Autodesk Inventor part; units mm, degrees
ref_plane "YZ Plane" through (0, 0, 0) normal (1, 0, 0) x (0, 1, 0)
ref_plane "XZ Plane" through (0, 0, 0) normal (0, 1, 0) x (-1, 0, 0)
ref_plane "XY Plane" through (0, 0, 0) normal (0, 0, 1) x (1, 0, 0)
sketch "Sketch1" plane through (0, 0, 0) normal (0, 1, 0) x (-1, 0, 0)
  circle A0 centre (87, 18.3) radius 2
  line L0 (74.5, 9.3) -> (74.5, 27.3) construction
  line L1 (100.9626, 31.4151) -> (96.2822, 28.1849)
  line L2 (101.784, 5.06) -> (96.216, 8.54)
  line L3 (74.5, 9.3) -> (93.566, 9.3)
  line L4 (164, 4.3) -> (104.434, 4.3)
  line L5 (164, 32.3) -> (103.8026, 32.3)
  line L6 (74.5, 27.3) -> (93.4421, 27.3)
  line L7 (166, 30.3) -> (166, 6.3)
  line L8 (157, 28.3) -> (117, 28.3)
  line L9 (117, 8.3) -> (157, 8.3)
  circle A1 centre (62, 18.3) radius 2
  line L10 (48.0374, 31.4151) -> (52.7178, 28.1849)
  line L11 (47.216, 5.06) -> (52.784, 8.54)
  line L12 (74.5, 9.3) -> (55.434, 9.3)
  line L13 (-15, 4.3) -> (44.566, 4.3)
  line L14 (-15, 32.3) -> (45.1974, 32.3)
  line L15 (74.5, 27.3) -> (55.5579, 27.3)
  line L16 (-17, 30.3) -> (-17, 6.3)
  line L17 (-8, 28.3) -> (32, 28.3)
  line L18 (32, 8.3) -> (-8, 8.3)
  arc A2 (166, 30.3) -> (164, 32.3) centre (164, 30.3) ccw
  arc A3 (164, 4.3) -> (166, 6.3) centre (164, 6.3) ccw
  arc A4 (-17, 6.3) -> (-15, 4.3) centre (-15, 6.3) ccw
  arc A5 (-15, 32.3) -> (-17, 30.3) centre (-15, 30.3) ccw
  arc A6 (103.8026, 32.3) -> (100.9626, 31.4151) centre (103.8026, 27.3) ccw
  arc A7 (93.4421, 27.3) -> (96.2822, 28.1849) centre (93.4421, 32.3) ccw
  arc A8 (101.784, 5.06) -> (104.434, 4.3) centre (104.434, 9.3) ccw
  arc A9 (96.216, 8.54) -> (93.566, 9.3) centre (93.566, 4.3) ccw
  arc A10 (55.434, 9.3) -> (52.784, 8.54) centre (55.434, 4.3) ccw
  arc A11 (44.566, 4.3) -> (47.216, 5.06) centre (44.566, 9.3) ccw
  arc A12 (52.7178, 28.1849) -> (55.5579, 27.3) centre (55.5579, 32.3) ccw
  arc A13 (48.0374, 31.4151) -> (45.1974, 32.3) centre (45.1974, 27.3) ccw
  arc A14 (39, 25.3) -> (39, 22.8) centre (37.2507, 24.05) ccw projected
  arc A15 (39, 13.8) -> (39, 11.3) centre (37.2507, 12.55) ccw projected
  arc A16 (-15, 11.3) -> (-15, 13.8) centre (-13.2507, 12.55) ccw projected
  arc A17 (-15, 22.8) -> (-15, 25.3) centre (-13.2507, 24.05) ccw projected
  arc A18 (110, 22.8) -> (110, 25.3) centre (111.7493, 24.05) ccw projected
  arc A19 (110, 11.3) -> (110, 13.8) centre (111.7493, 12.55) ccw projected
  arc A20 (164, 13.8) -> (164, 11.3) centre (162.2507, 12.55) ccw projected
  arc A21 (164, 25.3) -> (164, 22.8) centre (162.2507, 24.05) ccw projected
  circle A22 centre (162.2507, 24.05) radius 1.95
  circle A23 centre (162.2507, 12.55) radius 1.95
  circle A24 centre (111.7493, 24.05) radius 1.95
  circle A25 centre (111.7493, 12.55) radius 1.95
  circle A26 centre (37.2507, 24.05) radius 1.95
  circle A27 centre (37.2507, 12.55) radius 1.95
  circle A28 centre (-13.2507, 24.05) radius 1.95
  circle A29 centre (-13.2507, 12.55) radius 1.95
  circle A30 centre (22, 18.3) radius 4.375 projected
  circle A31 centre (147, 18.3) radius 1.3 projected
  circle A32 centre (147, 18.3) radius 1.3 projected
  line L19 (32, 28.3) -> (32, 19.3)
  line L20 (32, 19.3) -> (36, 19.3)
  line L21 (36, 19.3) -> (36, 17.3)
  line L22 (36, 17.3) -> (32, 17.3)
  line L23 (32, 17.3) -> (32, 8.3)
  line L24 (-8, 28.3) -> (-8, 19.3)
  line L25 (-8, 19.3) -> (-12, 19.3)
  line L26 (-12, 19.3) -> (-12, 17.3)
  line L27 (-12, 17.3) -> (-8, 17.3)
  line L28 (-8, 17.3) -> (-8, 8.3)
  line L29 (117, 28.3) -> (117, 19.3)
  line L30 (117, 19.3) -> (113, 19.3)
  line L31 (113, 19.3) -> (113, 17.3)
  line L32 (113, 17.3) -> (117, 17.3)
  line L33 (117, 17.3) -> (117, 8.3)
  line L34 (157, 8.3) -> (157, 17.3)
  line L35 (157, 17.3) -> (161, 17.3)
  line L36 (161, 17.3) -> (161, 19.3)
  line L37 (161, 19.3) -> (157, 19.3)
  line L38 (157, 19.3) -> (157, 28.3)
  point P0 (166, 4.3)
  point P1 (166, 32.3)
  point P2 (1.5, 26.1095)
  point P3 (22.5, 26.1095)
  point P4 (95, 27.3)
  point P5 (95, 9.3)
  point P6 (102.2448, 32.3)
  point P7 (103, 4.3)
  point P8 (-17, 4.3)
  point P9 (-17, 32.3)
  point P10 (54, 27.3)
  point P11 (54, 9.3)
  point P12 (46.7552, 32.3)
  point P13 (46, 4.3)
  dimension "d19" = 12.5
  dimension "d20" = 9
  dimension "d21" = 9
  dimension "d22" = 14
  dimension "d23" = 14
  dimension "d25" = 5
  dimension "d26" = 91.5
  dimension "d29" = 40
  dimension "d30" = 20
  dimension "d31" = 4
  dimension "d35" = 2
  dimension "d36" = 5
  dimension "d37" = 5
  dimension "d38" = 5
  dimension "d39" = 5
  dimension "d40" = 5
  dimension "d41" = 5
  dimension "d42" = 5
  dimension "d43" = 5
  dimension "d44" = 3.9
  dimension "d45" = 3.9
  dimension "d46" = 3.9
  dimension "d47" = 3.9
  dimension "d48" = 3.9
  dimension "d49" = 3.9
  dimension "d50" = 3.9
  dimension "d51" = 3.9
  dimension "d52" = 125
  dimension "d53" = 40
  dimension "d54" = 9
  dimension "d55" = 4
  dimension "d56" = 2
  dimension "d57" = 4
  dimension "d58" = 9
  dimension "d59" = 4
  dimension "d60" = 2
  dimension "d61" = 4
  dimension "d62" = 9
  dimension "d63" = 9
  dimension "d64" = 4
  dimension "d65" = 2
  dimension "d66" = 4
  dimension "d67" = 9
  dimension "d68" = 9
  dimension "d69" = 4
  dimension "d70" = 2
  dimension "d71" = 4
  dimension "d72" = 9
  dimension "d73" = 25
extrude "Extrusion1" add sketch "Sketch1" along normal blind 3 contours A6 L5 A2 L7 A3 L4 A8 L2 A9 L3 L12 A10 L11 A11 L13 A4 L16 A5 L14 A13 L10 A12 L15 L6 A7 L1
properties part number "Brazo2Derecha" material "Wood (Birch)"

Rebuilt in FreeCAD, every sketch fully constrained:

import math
import FreeCAD as App
import Part
import Sketcher

doc = App.newDocument("Part")
params = doc.addObject("Spreadsheet::Sheet", "Params")
for row, (alias, value) in enumerate([
    ("sketch1_diameter", "4 mm"),
    ("sketch1_radius", "5 mm"),
    ("sketch1_diameter2", "3.9 mm"),
    ("sketch1_width", "40 mm"),
    ("sketch1_width2", "4 mm"),
    ("pad1_length", "3 mm"),
], start=1):
    params.set(f"A{row}", alias)
    params.set(f"B{row}", "=" + value)
    params.setAlias(f"B{row}", alias)

body = doc.addObject("PartDesign::Body", "Body")

# Sketch on XZ plane
sketch1 = doc.addObject("Sketcher::SketchObject", "Sketch")
body.addObject(sketch1)
sketch1.AttachmentSupport = (doc.XZ_Plane, [""])
sketch1.MapMode = "FlatFace"
sketch1.addGeometry(Part.ArcOfCircle(Part.Circle(App.Vector(-103.8, 27.3, 0), App.Vector(0, 0, 1), 5), math.radians(55), math.radians(90)), False)
sketch1.addGeometry(Part.LineSegment(App.Vector(-101, 31.4, 0), App.Vector(-96.3, 28.2, 0)), False)
sketch1.addGeometry(Part.ArcOfCircle(Part.Circle(App.Vector(-93.4, 32.3, 0), App.Vector(0, 0, 1), 5), math.radians(-125), math.radians(-90)), False)
sketch1.addGeometry(Part.LineSegment(App.Vector(-93.4, 27.3, 0), App.Vector(-55.6, 27.3, 0)), False)
sketch1.addGeometry(Part.ArcOfCircle(Part.Circle(App.Vector(-55.6, 32.3, 0), App.Vector(0, 0, 1), 5), math.radians(-90), math.radians(-55)), False)
sketch1.addGeometry(Part.LineSegment(App.Vector(-52.7, 28.2, 0), App.Vector(-48, 31.4, 0)), False)
sketch1.addGeometry(Part.ArcOfCircle(Part.Circle(App.Vector(-45.2, 27.3, 0), App.Vector(0, 0, 1), 5), math.radians(90), math.radians(125)), False)
sketch1.addGeometry(Part.LineSegment(App.Vector(-45.2, 32.3, 0), App.Vector(15, 32.3, 0)), False)
sketch1.addGeometry(Part.ArcOfCircle(Part.Circle(App.Vector(15, 30.3, 0), App.Vector(0, 0, 1), 2), math.radians(0), math.radians(90)), False)
sketch1.addGeometry(Part.LineSegment(App.Vector(17, 30.3, 0), App.Vector(17, 6.3, 0)), False)
sketch1.addGeometry(Part.ArcOfCircle(Part.Circle(App.Vector(15, 6.3, 0), App.Vector(0, 0, 1), 2), math.radians(-90), math.radians(0)), False)
sketch1.addGeometry(Part.LineSegment(App.Vector(15, 4.3, 0), App.Vector(-44.6, 4.3, 0)), False)
sketch1.addGeometry(Part.ArcOfCircle(Part.Circle(App.Vector(-44.6, 9.3, 0), App.Vector(0, 0, 1), 5), math.radians(-122), math.radians(-90)), False)
sketch1.addGeometry(Part.LineSegment(App.Vector(-47.2, 5.1, 0), App.Vector(-52.8, 8.5, 0)), False)
sketch1.addGeometry(Part.ArcOfCircle(Part.Circle(App.Vector(-55.4, 4.3, 0), App.Vector(0, 0, 1), 5), math.radians(58), math.radians(90)), False)
sketch1.addGeometry(Part.LineSegment(App.Vector(-55.4, 9.3, 0), App.Vector(-93.6, 9.3, 0)), False)
sketch1.addGeometry(Part.ArcOfCircle(Part.Circle(App.Vector(-93.6, 4.3, 0), App.Vector(0, 0, 1), 5), math.radians(90), math.radians(122)), False)
sketch1.addGeometry(Part.LineSegment(App.Vector(-96.2, 8.5, 0), App.Vector(-101.8, 5.1, 0)), False)
sketch1.addGeometry(Part.ArcOfCircle(Part.Circle(App.Vector(-104.4, 9.3, 0), App.Vector(0, 0, 1), 5), math.radians(-90), math.radians(-58)), False)
sketch1.addGeometry(Part.LineSegment(App.Vector(-104.4, 4.3, 0), App.Vector(-164, 4.3, 0)), False)
sketch1.addGeometry(Part.ArcOfCircle(Part.Circle(App.Vector(-164, 6.3, 0), App.Vector(0, 0, 1), 2), math.radians(180), math.radians(270)), False)
sketch1.addGeometry(Part.LineSegment(App.Vector(-166, 6.3, 0), App.Vector(-166, 30.3, 0)), False)
sketch1.addGeometry(Part.ArcOfCircle(Part.Circle(App.Vector(-164, 30.3, 0), App.Vector(0, 0, 1), 2), math.radians(90), math.radians(180)), False)
sketch1.addGeometry(Part.LineSegment(App.Vector(-164, 32.3, 0), App.Vector(-103.8, 32.3, 0)), False)
sketch1.addGeometry(Part.Circle(App.Vector(13.3, 12.6, 0), App.Vector(0, 0, 1), 1.9), False)
sketch1.addGeometry(Part.LineSegment(App.Vector(8, 19.3, 0), App.Vector(8, 28.3, 0)), False)
sketch1.addGeometry(Part.LineSegment(App.Vector(8, 28.3, 0), App.Vector(-32, 28.3, 0)), False)
sketch1.addGeometry(Part.LineSegment(App.Vector(-32, 28.3, 0), App.Vector(-32, 19.3, 0)), False)
sketch1.addGeometry(Part.LineSegment(App.Vector(-32, 19.3, 0), App.Vector(-36, 19.3, 0)), False)
sketch1.addGeometry(Part.LineSegment(App.Vector(-36, 19.3, 0), App.Vector(-36, 17.3, 0)), False)
sketch1.addGeometry(Part.LineSegment(App.Vector(-36, 17.3, 0), App.Vector(-32, 17.3, 0)), False)
sketch1.addGeometry(Part.LineSegment(App.Vector(-32, 17.3, 0), App.Vector(-32, 8.3, 0)), False)
sketch1.addGeometry(Part.LineSegment(App.Vector(-32, 8.3, 0), App.Vector(8, 8.3, 0)), False)
sketch1.addGeometry(Part.LineSegment(App.Vector(8, 8.3, 0), App.Vector(8, 17.3, 0)), False)
sketch1.addGeometry(Part.LineSegment(App.Vector(8, 17.3, 0), App.Vector(12, 17.3, 0)), False)
sketch1.addGeometry(Part.LineSegment(App.Vector(12, 17.3, 0), App.Vector(12, 19.3, 0)), False)
sketch1.addGeometry(Part.LineSegment(App.Vector(12, 19.3, 0), App.Vector(8, 19.3, 0)), False)
sketch1.addGeometry(Part.Circle(App.Vector(-37.3, 12.6, 0), App.Vector(0, 0, 1), 1.9), False)
sketch1.addGeometry(Part.Circle(App.Vector(-62, 18.3, 0), App.Vector(0, 0, 1), 2), False)
sketch1.addGeometry(Part.Circle(App.Vector(-111.7, 12.6, 0), App.Vector(0, 0, 1), 1.9), False)
sketch1.addGeometry(Part.Circle(App.Vector(-87, 18.3, 0), App.Vector(0, 0, 1), 2), False)
sketch1.addGeometry(Part.Circle(App.Vector(-162.3, 12.6, 0), App.Vector(0, 0, 1), 1.9), False)
sketch1.addGeometry(Part.LineSegment(App.Vector(-117, 28.3, 0), App.Vector(-157, 28.3, 0)), False)
sketch1.addGeometry(Part.LineSegment(App.Vector(-157, 28.3, 0), App.Vector(-157, 19.3, 0)), False)
sketch1.addGeometry(Part.LineSegment(App.Vector(-157, 19.3, 0), App.Vector(-161, 19.3, 0)), False)
sketch1.addGeometry(Part.LineSegment(App.Vector(-161, 19.3, 0), App.Vector(-161, 17.3, 0)), False)
sketch1.addGeometry(Part.LineSegment(App.Vector(-161, 17.3, 0), App.Vector(-157, 17.3, 0)), False)
sketch1.addGeometry(Part.LineSegment(App.Vector(-157, 17.3, 0), App.Vector(-157, 8.3, 0)), False)
sketch1.addGeometry(Part.LineSegment(App.Vector(-157, 8.3, 0), App.Vector(-117, 8.3, 0)), False)
sketch1.addGeometry(Part.LineSegment(App.Vector(-117, 8.3, 0), App.Vector(-117, 17.3, 0)), False)
sketch1.addGeometry(Part.LineSegment(App.Vector(-117, 17.3, 0), App.Vector(-113, 17.3, 0)), False)
sketch1.addGeometry(Part.LineSegment(App.Vector(-113, 17.3, 0), App.Vector(-113, 19.3, 0)), False)
sketch1.addGeometry(Part.LineSegment(App.Vector(-113, 19.3, 0), App.Vector(-117, 19.3, 0)), False)
sketch1.addGeometry(Part.LineSegment(App.Vector(-117, 19.3, 0), App.Vector(-117, 28.3, 0)), False)
sketch1.addGeometry(Part.Circle(App.Vector(13.3, 24.1, 0), App.Vector(0, 0, 1), 1.9), False)
sketch1.addGeometry(Part.Circle(App.Vector(-37.3, 24.1, 0), App.Vector(0, 0, 1), 1.9), False)
sketch1.addGeometry(Part.Circle(App.Vector(-111.7, 24.1, 0), App.Vector(0, 0, 1), 1.9), False)
sketch1.addGeometry(Part.Circle(App.Vector(-162.3, 24.1, 0), App.Vector(0, 0, 1), 1.9), False)
sketch1.addConstraint(Sketcher.Constraint("Tangent", 0, 1, 1, 1))
sketch1.addConstraint(Sketcher.Constraint("Tangent", 1, 2, 2, 1))
sketch1.addConstraint(Sketcher.Constraint("Tangent", 2, 2, 3, 1))
sketch1.addConstraint(Sketcher.Constraint("Tangent", 3, 2, 4, 1))
sketch1.addConstraint(Sketcher.Constraint("Tangent", 4, 2, 5, 1))
sketch1.addConstraint(Sketcher.Constraint("Tangent", 5, 2, 6, 2))
sketch1.addConstraint(Sketcher.Constraint("Tangent", 6, 1, 7, 1))
sketch1.addConstraint(Sketcher.Constraint("Tangent", 7, 2, 8, 2))
sketch1.addConstraint(Sketcher.Constraint("Tangent", 8, 1, 9, 1))
sketch1.addConstraint(Sketcher.Constraint("Tangent", 9, 2, 10, 2))
sketch1.addConstraint(Sketcher.Constraint("Tangent", 10, 1, 11, 1))
sketch1.addConstraint(Sketcher.Constraint("Tangent", 11, 2, 12, 2))
sketch1.addConstraint(Sketcher.Constraint("Tangent", 12, 1, 13, 1))
sketch1.addConstraint(Sketcher.Constraint("Tangent", 13, 2, 14, 1))
sketch1.addConstraint(Sketcher.Constraint("Tangent", 14, 2, 15, 1))
sketch1.addConstraint(Sketcher.Constraint("Tangent", 15, 2, 16, 1))
sketch1.addConstraint(Sketcher.Constraint("Tangent", 16, 2, 17, 1))
sketch1.addConstraint(Sketcher.Constraint("Tangent", 17, 2, 18, 2))
sketch1.addConstraint(Sketcher.Constraint("Tangent", 18, 1, 19, 1))
sketch1.addConstraint(Sketcher.Constraint("Tangent", 19, 2, 20, 2))
sketch1.addConstraint(Sketcher.Constraint("Tangent", 20, 1, 21, 1))
sketch1.addConstraint(Sketcher.Constraint("Tangent", 21, 2, 22, 2))
sketch1.addConstraint(Sketcher.Constraint("Tangent", 22, 1, 23, 1))
sketch1.addConstraint(Sketcher.Constraint("Tangent", 23, 2, 0, 2))
sketch1.addConstraint(Sketcher.Constraint("Coincident", 25, 2, 26, 1))
sketch1.addConstraint(Sketcher.Constraint("Coincident", 26, 2, 27, 1))
sketch1.addConstraint(Sketcher.Constraint("Coincident", 27, 2, 28, 1))
sketch1.addConstraint(Sketcher.Constraint("Coincident", 28, 2, 29, 1))
sketch1.addConstraint(Sketcher.Constraint("Coincident", 29, 2, 30, 1))
sketch1.addConstraint(Sketcher.Constraint("Coincident", 30, 2, 31, 1))
sketch1.addConstraint(Sketcher.Constraint("Coincident", 31, 2, 32, 1))
sketch1.addConstraint(Sketcher.Constraint("Coincident", 32, 2, 33, 1))
sketch1.addConstraint(Sketcher.Constraint("Coincident", 33, 2, 34, 1))
sketch1.addConstraint(Sketcher.Constraint("Coincident", 34, 2, 35, 1))
sketch1.addConstraint(Sketcher.Constraint("Coincident", 35, 2, 36, 1))
sketch1.addConstraint(Sketcher.Constraint("Coincident", 36, 2, 25, 1))
sketch1.addConstraint(Sketcher.Constraint("Coincident", 42, 2, 43, 1))
sketch1.addConstraint(Sketcher.Constraint("Coincident", 43, 2, 44, 1))
sketch1.addConstraint(Sketcher.Constraint("Coincident", 44, 2, 45, 1))
sketch1.addConstraint(Sketcher.Constraint("Coincident", 45, 2, 46, 1))
sketch1.addConstraint(Sketcher.Constraint("Coincident", 46, 2, 47, 1))
sketch1.addConstraint(Sketcher.Constraint("Coincident", 47, 2, 48, 1))
sketch1.addConstraint(Sketcher.Constraint("Coincident", 48, 2, 49, 1))
sketch1.addConstraint(Sketcher.Constraint("Coincident", 49, 2, 50, 1))
sketch1.addConstraint(Sketcher.Constraint("Coincident", 50, 2, 51, 1))
sketch1.addConstraint(Sketcher.Constraint("Coincident", 51, 2, 52, 1))
sketch1.addConstraint(Sketcher.Constraint("Coincident", 52, 2, 53, 1))
sketch1.addConstraint(Sketcher.Constraint("Coincident", 53, 2, 42, 1))
sketch1.addConstraint(Sketcher.Constraint("Horizontal", 3))
sketch1.addConstraint(Sketcher.Constraint("Horizontal", 7))
sketch1.addConstraint(Sketcher.Constraint("Vertical", 9))
sketch1.addConstraint(Sketcher.Constraint("Horizontal", 11))
sketch1.addConstraint(Sketcher.Constraint("Horizontal", 15))
sketch1.addConstraint(Sketcher.Constraint("Horizontal", 19))
sketch1.addConstraint(Sketcher.Constraint("Vertical", 21))
sketch1.addConstraint(Sketcher.Constraint("Horizontal", 23))
sketch1.addConstraint(Sketcher.Constraint("Vertical", 25))
sketch1.addConstraint(Sketcher.Constraint("Horizontal", 26))
sketch1.addConstraint(Sketcher.Constraint("Vertical", 27))
sketch1.addConstraint(Sketcher.Constraint("Horizontal", 28))
sketch1.addConstraint(Sketcher.Constraint("Vertical", 29))
sketch1.addConstraint(Sketcher.Constraint("Horizontal", 30))
sketch1.addConstraint(Sketcher.Constraint("Vertical", 31))
sketch1.addConstraint(Sketcher.Constraint("Horizontal", 32))
sketch1.addConstraint(Sketcher.Constraint("Vertical", 33))
sketch1.addConstraint(Sketcher.Constraint("Horizontal", 34))
sketch1.addConstraint(Sketcher.Constraint("Vertical", 35))
sketch1.addConstraint(Sketcher.Constraint("Horizontal", 36))
sketch1.addConstraint(Sketcher.Constraint("Horizontal", 42))
sketch1.addConstraint(Sketcher.Constraint("Vertical", 43))
sketch1.addConstraint(Sketcher.Constraint("Horizontal", 44))
sketch1.addConstraint(Sketcher.Constraint("Vertical", 45))
sketch1.addConstraint(Sketcher.Constraint("Horizontal", 46))
sketch1.addConstraint(Sketcher.Constraint("Vertical", 47))
sketch1.addConstraint(Sketcher.Constraint("Horizontal", 48))
sketch1.addConstraint(Sketcher.Constraint("Vertical", 49))
sketch1.addConstraint(Sketcher.Constraint("Horizontal", 50))
sketch1.addConstraint(Sketcher.Constraint("Vertical", 51))
sketch1.addConstraint(Sketcher.Constraint("Horizontal", 52))
sketch1.addConstraint(Sketcher.Constraint("Vertical", 53))
sketch1.addConstraint(Sketcher.Constraint("Equal", 0, 2))
sketch1.addConstraint(Sketcher.Constraint("Equal", 2, 4))
sketch1.addConstraint(Sketcher.Constraint("Equal", 4, 6))
sketch1.addConstraint(Sketcher.Constraint("Equal", 8, 10))
sketch1.addConstraint(Sketcher.Constraint("Equal", 6, 12))
sketch1.addConstraint(Sketcher.Constraint("Equal", 12, 14))
sketch1.addConstraint(Sketcher.Constraint("Equal", 14, 16))
sketch1.addConstraint(Sketcher.Constraint("Equal", 16, 18))
sketch1.addConstraint(Sketcher.Constraint("Equal", 10, 20))
sketch1.addConstraint(Sketcher.Constraint("Equal", 20, 22))
sketch1.addConstraint(Sketcher.Constraint("Equal", 24, 37))
sketch1.addConstraint(Sketcher.Constraint("Equal", 22, 38))
sketch1.addConstraint(Sketcher.Constraint("Equal", 37, 39))
sketch1.addConstraint(Sketcher.Constraint("Equal", 38, 40))
sketch1.addConstraint(Sketcher.Constraint("Equal", 39, 41))
sketch1.addConstraint(Sketcher.Constraint("Equal", 41, 54))
sketch1.addConstraint(Sketcher.Constraint("Equal", 54, 55))
sketch1.addConstraint(Sketcher.Constraint("Equal", 55, 56))
sketch1.addConstraint(Sketcher.Constraint("Equal", 56, 57))
sketch1.addConstraint(Sketcher.Constraint("Horizontal", 0, 3, 6, 3))
sketch1.addConstraint(Sketcher.Constraint("Horizontal", 12, 3, 18, 3))
sketch1.addConstraint(Sketcher.Constraint("Horizontal", 24, 3, 37, 3))
sketch1.addConstraint(Sketcher.Constraint("Horizontal", 37, 3, 39, 3))
sketch1.addConstraint(Sketcher.Constraint("Horizontal", 38, 3, 40, 3))
sketch1.addConstraint(Sketcher.Constraint("Horizontal", 39, 3, 41, 3))
sketch1.addConstraint(Sketcher.Constraint("Horizontal", 54, 3, 55, 3))
sketch1.addConstraint(Sketcher.Constraint("Horizontal", 55, 3, 56, 3))
sketch1.addConstraint(Sketcher.Constraint("Horizontal", 56, 3, 57, 3))
sketch1.addConstraint(Sketcher.Constraint("Horizontal", 6, 3, 2, 2))
sketch1.addConstraint(Sketcher.Constraint("Horizontal", 1, 2, 4, 2))
sketch1.addConstraint(Sketcher.Constraint("Horizontal", 16, 3, 10, 1))
sketch1.addConstraint(Sketcher.Constraint("Horizontal", 13, 2, 16, 2))
sketch1.addConstraint(Sketcher.Constraint("Horizontal", 30, 2, 33, 2))
sketch1.addConstraint(Sketcher.Constraint("Horizontal", 28, 2, 35, 2))
sketch1.addConstraint(Sketcher.Constraint("Horizontal", 26, 2, 42, 2))
sketch1.addConstraint(Sketcher.Constraint("Horizontal", 36, 2, 43, 2))
sketch1.addConstraint(Sketcher.Constraint("Horizontal", 34, 2, 45, 2))
sketch1.addConstraint(Sketcher.Constraint("Horizontal", 32, 2, 47, 2))
sketch1.addConstraint(Sketcher.Constraint("Horizontal", 46, 2, 49, 2))
sketch1.addConstraint(Sketcher.Constraint("Horizontal", 44, 2, 51, 2))
sketch1.addConstraint(Sketcher.Constraint("Vertical", 24, 3, 54, 3))
sketch1.addConstraint(Sketcher.Constraint("Vertical", 37, 3, 55, 3))
sketch1.addConstraint(Sketcher.Constraint("Vertical", 39, 3, 56, 3))
sketch1.addConstraint(Sketcher.Constraint("Vertical", 41, 3, 57, 3))
sketch1.addConstraint(Sketcher.Constraint("Vertical", 27, 2, 30, 2))
sketch1.addConstraint(Sketcher.Constraint("Vertical", 25, 2, 32, 2))
sketch1.addConstraint(Sketcher.Constraint("Vertical", 43, 2, 46, 2))
sketch1.addConstraint(Sketcher.Constraint("Vertical", 49, 2, 52, 2))
sketch1.addConstraint(Sketcher.Constraint("Equal", 11, 19))
sketch1.addConstraint(Sketcher.Constraint("Equal", 7, 23))
sketch1.addConstraint(Sketcher.Constraint("Equal", 30, 34))
sketch1.addConstraint(Sketcher.Constraint("Equal", 32, 42))
sketch1.addConstraint(Sketcher.Constraint("Equal", 36, 44))
sketch1.addConstraint(Sketcher.Constraint("Equal", 46, 50))
sketch1.addConstraint(Sketcher.Constraint("Equal", 27, 31))
sketch1.addConstraint(Sketcher.Constraint("Diameter", 38, 4.0))
sketch1.addConstraint(Sketcher.Constraint("Radius", 0, 5.0))
sketch1.addConstraint(Sketcher.Constraint("Diameter", 24, 3.9))
sketch1.addConstraint(Sketcher.Constraint("DistanceX", 26, 2, 26, 1, 40.0))
sketch1.addConstraint(Sketcher.Constraint("DistanceX", 28, 2, 28, 1, 4.0))
sketch1.addConstraint(Sketcher.Constraint("DistanceY", 25, 1, 25, 2, 9.0))
sketch1.addConstraint(Sketcher.Constraint("DistanceY", 29, 2, 29, 1, 2.0))
sketch1.addConstraint(Sketcher.Constraint("DistanceY", 9, 2, 9, 1, 24.0))
sketch1.addConstraint(Sketcher.Constraint("DistanceX", -1, 1, 8, 3, 15.0))
sketch1.addConstraint(Sketcher.Constraint("DistanceX", 20, 3, -1, 1, 164.0))
sketch1.addConstraint(Sketcher.Constraint("DistanceX", 38, 3, -1, 1, 62.0))
sketch1.addConstraint(Sketcher.Constraint("DistanceX", 40, 3, -1, 1, 87.0))
sketch1.addConstraint(Sketcher.Constraint("DistanceX", -1, 1, 25, 2, 8.0))
sketch1.addConstraint(Sketcher.Constraint("DistanceX", 42, 2, -1, 1, 157.0))
sketch1.addConstraint(Sketcher.Constraint("DistanceY", -1, 1, 0, 3, 27.3))
sketch1.addConstraint(Sketcher.Constraint("DistanceY", -1, 1, 38, 3, 18.3))
sketch1.addConstraint(Sketcher.Constraint("DistanceY", -1, 1, 25, 2, 28.3))
sketch1.addConstraint(Sketcher.Constraint("DistanceX", 11, 2, 11, 1, 59.566))
sketch1.addConstraint(Sketcher.Constraint("DistanceX", 15, 2, 15, 1, 38.132))
sketch1.addConstraint(Sketcher.Constraint("DistanceY", -1, 1, 24, 3, 12.55))
sketch1.addConstraint(Sketcher.Constraint("DistanceY", -1, 1, 54, 3, 24.05))
sketch1.addConstraint(Sketcher.Constraint("DistanceX", 3, 1, 3, 2, 37.8842))
sketch1.addConstraint(Sketcher.Constraint("DistanceX", 7, 1, 7, 2, 60.1974))
sketch1.addConstraint(Sketcher.Constraint("DistanceX", -1, 1, 24, 3, 13.2507))
sketch1.addConstraint(Sketcher.Constraint("DistanceX", 37, 3, -1, 1, 37.2507))
sketch1.addConstraint(Sketcher.Constraint("DistanceX", 39, 3, -1, 1, 111.7493))
sketch1.addConstraint(Sketcher.Constraint("DistanceX", 41, 3, -1, 1, 162.2507))
sketch1.setExpression("Constraints[135]", "Params.sketch1_diameter")
sketch1.setExpression("Constraints[136]", "Params.sketch1_radius")
sketch1.setExpression("Constraints[137]", "Params.sketch1_diameter2")
sketch1.setExpression("Constraints[138]", "Params.sketch1_width")
sketch1.setExpression("Constraints[139]", "Params.sketch1_width2")
pad1 = doc.addObject("PartDesign::Pad", "Pad")
body.addObject(pad1)
pad1.Profile = sketch1
pad1.setExpression("Length", "Params.pad1_length")
pad1.Reversed = True

doc.recompute()
